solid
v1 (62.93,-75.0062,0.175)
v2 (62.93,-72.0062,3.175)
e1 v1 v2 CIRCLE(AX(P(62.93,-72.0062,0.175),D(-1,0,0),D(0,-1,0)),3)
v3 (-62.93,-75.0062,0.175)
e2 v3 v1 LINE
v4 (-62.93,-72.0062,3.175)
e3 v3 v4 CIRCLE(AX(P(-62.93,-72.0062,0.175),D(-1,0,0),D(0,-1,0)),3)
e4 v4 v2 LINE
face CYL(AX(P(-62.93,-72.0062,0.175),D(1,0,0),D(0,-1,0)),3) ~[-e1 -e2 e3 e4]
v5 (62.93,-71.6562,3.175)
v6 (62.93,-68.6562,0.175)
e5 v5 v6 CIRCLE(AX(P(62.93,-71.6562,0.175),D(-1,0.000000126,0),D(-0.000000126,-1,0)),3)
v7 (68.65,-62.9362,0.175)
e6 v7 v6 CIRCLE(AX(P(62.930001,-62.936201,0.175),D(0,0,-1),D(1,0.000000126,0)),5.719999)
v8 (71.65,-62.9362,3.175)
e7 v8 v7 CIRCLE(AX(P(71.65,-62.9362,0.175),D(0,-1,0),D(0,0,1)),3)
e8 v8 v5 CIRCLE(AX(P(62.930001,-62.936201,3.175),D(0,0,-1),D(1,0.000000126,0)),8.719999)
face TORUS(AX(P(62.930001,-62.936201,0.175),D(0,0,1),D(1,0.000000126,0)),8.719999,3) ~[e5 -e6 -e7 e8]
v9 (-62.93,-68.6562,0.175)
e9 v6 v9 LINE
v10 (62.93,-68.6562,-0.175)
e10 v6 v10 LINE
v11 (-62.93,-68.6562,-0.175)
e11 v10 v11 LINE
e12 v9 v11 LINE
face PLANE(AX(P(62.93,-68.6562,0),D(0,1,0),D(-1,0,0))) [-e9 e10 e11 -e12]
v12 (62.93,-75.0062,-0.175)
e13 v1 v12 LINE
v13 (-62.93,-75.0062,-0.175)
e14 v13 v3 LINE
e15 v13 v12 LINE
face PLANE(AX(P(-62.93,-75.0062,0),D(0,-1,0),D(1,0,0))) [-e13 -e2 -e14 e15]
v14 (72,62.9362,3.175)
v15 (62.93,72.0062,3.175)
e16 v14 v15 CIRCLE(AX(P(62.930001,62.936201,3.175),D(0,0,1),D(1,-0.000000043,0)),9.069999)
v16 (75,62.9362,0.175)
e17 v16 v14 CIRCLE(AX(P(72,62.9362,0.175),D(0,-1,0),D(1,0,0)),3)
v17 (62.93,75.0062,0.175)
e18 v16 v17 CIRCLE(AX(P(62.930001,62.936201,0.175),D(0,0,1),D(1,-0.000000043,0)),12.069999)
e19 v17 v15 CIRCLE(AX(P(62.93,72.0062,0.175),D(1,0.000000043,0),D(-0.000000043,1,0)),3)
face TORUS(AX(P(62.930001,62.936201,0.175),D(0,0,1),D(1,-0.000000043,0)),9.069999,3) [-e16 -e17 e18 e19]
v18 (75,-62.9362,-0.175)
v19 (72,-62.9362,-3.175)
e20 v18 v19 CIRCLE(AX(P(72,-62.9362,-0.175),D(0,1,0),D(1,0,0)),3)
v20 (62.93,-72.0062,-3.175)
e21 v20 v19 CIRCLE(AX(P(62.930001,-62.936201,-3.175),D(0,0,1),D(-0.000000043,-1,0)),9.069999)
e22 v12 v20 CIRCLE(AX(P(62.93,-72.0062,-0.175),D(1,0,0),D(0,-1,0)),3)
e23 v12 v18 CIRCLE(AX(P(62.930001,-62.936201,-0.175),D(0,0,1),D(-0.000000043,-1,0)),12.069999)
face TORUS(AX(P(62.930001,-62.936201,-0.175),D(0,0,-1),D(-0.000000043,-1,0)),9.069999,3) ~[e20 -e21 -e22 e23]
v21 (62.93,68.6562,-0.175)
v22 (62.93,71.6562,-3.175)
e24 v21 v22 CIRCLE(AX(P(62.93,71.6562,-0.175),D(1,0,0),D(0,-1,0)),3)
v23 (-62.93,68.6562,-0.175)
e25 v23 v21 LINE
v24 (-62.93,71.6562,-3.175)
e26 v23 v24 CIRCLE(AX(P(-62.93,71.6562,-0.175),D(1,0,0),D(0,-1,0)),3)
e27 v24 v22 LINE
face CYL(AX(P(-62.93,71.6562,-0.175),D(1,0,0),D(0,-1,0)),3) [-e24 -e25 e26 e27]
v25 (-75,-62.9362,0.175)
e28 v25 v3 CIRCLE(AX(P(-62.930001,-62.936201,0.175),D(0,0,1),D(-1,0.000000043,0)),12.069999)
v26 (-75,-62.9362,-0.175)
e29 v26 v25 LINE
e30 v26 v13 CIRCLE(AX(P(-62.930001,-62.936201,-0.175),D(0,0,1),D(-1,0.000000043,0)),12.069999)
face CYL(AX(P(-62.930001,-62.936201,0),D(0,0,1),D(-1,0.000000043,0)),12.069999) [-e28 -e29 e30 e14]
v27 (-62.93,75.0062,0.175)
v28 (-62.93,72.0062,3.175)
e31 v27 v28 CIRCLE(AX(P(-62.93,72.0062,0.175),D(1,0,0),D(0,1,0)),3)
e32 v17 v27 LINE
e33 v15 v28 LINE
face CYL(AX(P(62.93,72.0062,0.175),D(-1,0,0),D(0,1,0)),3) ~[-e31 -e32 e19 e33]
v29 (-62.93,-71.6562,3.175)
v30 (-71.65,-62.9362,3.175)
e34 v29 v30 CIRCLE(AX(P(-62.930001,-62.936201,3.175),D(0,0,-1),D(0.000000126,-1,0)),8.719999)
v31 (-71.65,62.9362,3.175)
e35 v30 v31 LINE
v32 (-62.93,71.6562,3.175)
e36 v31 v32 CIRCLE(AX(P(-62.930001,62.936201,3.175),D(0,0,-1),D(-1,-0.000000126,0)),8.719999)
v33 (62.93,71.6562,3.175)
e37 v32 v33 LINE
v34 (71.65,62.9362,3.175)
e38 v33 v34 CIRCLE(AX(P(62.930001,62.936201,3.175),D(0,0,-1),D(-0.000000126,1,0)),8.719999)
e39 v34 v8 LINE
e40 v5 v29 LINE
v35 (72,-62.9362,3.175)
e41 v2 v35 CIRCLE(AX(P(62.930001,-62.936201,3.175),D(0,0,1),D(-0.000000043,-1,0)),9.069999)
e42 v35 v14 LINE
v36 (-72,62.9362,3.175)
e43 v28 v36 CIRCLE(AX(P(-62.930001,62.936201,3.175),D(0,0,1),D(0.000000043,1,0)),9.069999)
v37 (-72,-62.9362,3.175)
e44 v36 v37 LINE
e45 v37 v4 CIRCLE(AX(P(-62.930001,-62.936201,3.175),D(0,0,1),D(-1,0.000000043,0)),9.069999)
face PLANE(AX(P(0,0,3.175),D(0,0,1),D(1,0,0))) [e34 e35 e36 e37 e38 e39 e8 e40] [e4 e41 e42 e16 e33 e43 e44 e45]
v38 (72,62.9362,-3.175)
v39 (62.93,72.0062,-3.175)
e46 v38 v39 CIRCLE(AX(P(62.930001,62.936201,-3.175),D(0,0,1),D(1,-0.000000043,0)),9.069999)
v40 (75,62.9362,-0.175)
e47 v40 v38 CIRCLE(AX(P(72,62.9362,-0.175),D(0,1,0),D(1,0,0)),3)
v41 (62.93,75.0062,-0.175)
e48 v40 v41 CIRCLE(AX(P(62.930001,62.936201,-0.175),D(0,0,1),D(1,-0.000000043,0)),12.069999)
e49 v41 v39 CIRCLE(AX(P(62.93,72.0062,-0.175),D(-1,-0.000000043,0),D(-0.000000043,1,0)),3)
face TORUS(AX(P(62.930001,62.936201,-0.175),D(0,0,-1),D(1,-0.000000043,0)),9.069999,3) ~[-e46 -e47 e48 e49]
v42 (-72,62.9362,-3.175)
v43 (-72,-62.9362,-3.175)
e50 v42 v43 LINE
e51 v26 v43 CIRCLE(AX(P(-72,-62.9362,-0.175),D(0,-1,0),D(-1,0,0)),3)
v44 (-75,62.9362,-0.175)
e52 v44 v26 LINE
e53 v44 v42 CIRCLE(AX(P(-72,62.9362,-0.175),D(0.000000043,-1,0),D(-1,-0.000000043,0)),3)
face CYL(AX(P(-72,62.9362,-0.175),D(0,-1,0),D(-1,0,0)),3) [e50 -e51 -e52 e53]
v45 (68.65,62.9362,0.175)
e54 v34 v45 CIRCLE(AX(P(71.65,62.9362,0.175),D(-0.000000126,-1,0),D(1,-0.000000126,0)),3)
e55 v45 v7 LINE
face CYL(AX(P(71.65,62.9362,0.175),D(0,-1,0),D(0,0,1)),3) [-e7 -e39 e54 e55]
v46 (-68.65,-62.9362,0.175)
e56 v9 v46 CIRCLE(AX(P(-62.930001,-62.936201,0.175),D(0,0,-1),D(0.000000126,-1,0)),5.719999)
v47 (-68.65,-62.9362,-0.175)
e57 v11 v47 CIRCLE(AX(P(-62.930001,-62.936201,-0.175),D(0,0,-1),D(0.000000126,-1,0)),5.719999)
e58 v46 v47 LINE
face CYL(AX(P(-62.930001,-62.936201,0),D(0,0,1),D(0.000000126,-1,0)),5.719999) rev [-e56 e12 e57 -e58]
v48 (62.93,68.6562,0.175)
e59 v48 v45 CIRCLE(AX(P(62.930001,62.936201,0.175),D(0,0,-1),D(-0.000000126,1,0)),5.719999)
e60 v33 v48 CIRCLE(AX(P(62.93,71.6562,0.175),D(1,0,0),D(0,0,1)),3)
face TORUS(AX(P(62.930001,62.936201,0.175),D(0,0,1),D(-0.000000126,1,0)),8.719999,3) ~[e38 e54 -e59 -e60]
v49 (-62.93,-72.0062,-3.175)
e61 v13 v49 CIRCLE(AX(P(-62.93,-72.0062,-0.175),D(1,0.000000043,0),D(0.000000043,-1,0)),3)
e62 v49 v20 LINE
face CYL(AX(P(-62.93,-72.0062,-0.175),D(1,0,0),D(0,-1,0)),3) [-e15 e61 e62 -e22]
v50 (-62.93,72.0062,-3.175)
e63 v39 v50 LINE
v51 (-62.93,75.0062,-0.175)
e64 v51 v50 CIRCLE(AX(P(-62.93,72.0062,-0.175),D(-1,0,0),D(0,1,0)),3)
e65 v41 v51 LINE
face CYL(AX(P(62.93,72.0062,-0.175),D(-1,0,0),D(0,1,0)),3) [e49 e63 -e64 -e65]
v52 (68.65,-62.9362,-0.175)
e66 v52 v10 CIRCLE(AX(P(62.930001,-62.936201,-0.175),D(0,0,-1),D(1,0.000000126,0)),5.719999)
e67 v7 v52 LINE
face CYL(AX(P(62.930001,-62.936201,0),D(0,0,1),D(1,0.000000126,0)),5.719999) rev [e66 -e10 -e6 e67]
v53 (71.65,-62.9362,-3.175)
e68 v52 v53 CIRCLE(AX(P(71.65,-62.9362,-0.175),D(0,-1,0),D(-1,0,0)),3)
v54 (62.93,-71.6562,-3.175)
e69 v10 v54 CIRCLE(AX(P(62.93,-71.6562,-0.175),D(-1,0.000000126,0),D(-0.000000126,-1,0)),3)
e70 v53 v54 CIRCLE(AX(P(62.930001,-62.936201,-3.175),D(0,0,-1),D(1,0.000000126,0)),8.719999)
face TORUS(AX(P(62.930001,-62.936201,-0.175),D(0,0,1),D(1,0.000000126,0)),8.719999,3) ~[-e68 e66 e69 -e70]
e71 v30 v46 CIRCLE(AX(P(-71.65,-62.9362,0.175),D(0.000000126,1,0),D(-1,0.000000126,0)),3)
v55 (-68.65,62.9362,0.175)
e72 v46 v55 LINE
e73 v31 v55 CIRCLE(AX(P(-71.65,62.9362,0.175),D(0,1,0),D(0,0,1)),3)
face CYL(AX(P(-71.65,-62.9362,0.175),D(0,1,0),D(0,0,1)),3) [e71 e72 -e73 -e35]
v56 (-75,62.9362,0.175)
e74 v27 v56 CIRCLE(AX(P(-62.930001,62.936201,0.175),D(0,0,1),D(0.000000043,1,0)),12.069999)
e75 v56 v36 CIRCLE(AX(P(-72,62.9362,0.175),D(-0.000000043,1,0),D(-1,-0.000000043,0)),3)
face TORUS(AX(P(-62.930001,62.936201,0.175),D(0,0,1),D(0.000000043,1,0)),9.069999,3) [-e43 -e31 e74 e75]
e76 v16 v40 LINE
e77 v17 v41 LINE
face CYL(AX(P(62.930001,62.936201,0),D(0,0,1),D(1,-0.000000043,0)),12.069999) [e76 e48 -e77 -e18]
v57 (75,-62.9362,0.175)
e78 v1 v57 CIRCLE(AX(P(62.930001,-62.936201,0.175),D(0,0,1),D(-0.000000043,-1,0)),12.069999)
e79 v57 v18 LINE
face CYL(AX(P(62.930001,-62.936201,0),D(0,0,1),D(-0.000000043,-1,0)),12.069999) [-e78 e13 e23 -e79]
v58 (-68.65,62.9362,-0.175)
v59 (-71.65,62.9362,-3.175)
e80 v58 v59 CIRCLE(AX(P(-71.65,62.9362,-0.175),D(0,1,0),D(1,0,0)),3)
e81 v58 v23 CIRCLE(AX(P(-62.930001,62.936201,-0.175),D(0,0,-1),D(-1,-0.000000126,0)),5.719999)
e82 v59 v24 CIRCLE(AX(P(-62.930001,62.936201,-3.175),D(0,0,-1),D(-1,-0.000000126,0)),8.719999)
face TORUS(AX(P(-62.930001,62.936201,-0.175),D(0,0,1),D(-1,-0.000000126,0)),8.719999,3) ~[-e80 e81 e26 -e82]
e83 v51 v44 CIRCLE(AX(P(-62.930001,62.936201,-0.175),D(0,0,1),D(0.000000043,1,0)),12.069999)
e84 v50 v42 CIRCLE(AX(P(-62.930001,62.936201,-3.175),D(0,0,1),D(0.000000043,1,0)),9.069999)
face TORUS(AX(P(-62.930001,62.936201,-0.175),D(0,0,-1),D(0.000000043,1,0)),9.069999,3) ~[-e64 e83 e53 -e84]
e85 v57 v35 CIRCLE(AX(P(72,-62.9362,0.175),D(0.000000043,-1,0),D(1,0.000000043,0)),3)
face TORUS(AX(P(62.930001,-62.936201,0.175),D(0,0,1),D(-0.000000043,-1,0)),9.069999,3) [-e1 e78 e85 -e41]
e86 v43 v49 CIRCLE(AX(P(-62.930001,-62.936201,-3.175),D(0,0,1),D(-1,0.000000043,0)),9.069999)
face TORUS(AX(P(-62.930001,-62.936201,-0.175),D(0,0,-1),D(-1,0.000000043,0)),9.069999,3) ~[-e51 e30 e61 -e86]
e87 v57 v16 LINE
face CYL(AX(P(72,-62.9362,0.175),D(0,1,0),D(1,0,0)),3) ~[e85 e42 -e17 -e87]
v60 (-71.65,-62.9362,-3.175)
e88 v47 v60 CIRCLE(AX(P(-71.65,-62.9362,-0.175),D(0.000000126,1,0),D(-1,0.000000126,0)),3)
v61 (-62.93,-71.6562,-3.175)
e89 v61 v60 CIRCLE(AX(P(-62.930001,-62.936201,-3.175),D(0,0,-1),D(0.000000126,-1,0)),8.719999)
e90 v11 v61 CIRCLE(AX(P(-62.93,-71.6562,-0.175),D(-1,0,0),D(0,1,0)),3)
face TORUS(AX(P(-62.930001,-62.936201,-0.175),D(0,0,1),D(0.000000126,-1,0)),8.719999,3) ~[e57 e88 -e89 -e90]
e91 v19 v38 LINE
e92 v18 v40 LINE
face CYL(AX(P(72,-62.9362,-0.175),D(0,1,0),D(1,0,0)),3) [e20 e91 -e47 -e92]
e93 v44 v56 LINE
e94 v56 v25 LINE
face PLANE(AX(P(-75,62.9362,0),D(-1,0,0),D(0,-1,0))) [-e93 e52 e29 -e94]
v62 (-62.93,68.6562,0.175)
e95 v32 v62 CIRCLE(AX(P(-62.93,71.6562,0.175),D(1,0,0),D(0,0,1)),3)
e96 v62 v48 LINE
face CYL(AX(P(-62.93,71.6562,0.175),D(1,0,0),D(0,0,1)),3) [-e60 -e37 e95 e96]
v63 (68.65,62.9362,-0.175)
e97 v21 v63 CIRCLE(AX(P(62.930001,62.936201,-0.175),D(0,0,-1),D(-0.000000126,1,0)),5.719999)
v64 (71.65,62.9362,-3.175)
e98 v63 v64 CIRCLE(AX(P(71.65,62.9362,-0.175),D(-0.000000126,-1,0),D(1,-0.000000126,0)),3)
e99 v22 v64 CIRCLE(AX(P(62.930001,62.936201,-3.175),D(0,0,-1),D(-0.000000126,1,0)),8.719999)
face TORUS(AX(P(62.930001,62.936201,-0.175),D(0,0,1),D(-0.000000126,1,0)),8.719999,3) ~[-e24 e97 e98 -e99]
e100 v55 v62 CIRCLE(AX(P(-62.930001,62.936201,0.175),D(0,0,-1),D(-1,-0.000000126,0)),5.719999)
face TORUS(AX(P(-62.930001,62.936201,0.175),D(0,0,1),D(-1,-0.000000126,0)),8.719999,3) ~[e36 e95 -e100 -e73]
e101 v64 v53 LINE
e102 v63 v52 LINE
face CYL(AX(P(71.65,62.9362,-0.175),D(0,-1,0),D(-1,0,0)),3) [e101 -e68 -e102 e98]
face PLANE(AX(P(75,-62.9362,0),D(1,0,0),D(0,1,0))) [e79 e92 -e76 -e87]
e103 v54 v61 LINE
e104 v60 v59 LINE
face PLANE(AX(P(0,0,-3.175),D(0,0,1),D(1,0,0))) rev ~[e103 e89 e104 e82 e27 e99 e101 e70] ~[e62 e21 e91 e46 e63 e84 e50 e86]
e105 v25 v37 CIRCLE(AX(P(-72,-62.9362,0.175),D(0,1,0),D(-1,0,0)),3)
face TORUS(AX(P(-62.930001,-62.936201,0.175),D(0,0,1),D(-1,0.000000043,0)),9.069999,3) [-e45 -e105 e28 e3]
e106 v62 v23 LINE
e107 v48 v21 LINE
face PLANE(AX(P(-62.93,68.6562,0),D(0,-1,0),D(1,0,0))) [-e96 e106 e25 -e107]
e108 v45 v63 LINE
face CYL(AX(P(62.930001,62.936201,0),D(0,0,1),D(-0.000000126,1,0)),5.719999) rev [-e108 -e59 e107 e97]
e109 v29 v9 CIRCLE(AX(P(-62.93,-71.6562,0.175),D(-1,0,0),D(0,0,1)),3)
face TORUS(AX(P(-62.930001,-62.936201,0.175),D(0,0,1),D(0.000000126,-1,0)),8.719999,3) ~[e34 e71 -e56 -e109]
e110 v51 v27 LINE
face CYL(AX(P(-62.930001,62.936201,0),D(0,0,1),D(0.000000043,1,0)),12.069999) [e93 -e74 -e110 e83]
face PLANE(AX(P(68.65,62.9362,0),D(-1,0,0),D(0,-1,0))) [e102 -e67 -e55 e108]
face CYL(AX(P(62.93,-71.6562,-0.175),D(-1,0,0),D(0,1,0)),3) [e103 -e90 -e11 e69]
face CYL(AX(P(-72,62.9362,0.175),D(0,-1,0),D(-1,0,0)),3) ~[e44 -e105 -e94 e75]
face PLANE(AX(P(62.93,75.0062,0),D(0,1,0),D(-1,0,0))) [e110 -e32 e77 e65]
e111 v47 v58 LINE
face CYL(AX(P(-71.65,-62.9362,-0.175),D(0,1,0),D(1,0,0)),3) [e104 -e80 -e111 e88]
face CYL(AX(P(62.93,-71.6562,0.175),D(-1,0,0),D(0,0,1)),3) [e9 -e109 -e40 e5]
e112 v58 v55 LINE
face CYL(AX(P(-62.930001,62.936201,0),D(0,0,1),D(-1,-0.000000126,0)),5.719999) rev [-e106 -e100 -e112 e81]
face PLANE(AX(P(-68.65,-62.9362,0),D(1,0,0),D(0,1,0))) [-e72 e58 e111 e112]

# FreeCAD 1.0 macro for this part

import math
import FreeCAD as App
import Part
import Sketcher
from FreeCAD import Vector


def edges_at(feature, points):
    """Names of the edges that pass closest to the given points."""
    edges = feature.Shape.Edges
    near = lambda p: min(range(len(edges)), key=lambda i: edges[i].distToShape(Part.Vertex(*p))[0])
    return sorted({f"Edge{near(p) + 1}" for p in points})

doc = App.newDocument("Part")
body = doc.addObject("PartDesign::Body", "Body")

sketch1 = body.newObject("Sketcher::SketchObject", "Sketch")
sketch1.AttachmentSupport = (doc.getObject("XY_Plane"), [""])
sketch1.MapMode = "FlatFace"
sketch1.addGeometry([
    Part.LineSegment(Vector(62.93, 75.0062, 0), Vector(-62.93, 75.0062, 0)),
    Part.ArcOfCircle(Part.Circle(Vector(-62.930001, 62.936201, 0), Vector(0, 0, 1), 12.069999), math.radians(89.999998), math.radians(180.000002)),
    Part.LineSegment(Vector(-75, 62.9362, 0), Vector(-75, -62.9362, 0)),
    Part.ArcOfCircle(Part.Circle(Vector(-62.930001, -62.936201, 0), Vector(0, 0, 1), 12.069999), math.radians(179.999998), math.radians(270.000002)),
    Part.LineSegment(Vector(-62.93, -75.0062, 0), Vector(62.93, -75.0062, 0)),
    Part.ArcOfCircle(Part.Circle(Vector(62.930001, -62.936201, 0), Vector(0, 0, 1), 12.069999), math.radians(-90.000002), math.radians(0.000002)),
    Part.LineSegment(Vector(75, -62.9362, 0), Vector(75, 62.9362, 0)),
    Part.ArcOfCircle(Part.Circle(Vector(62.930001, 62.936201, 0), Vector(0, 0, 1), 12.069999), math.radians(-0.000002), math.radians(90.000002)),
    Part.LineSegment(Vector(-68.65, -62.9362, 0), Vector(-68.65, 62.9362, 0)),
    Part.ArcOfCircle(Part.Circle(Vector(-62.930001, 62.936201, 0), Vector(0, 0, 1), 5.719999), math.radians(89.999993), math.radians(180.000007)),
    Part.LineSegment(Vector(-62.93, 68.6562, 0), Vector(62.93, 68.6562, 0)),
    Part.ArcOfCircle(Part.Circle(Vector(62.930001, 62.936201, 0), Vector(0, 0, 1), 5.719999), math.radians(-0.000007), math.radians(90.000007)),
    Part.LineSegment(Vector(68.65, 62.9362, 0), Vector(68.65, -62.9362, 0)),
    Part.ArcOfCircle(Part.Circle(Vector(62.930001, -62.936201, 0), Vector(0, 0, 1), 5.719999), math.radians(-90.000007), math.radians(0.000007)),
    Part.LineSegment(Vector(62.93, -68.6562, 0), Vector(-62.93, -68.6562, 0)),
    Part.ArcOfCircle(Part.Circle(Vector(-62.930001, -62.936201, 0), Vector(0, 0, 1), 5.719999), math.radians(179.999993), math.radians(270.000007)),
], False)
sketch1.addConstraint([
    Sketcher.Constraint("Tangent", 0, 2, 1, 1),
    Sketcher.Constraint("Tangent", 1, 2, 2, 1),
    Sketcher.Constraint("Tangent", 2, 2, 3, 1),
    Sketcher.Constraint("Tangent", 3, 2, 4, 1),
    Sketcher.Constraint("Tangent", 4, 2, 5, 1),
    Sketcher.Constraint("Tangent", 5, 2, 6, 1),
    Sketcher.Constraint("Tangent", 6, 2, 7, 1),
    Sketcher.Constraint("Tangent", 7, 2, 0, 1),
    Sketcher.Constraint("Tangent", 8, 2, 9, 2),
    Sketcher.Constraint("Tangent", 9, 1, 10, 1),
    Sketcher.Constraint("Tangent", 10, 2, 11, 2),
    Sketcher.Constraint("Tangent", 11, 1, 12, 1),
    Sketcher.Constraint("Tangent", 12, 2, 13, 2),
    Sketcher.Constraint("Tangent", 13, 1, 14, 1),
    Sketcher.Constraint("Tangent", 14, 2, 15, 2),
    Sketcher.Constraint("Tangent", 15, 1, 8, 1),
    Sketcher.Constraint("Horizontal", 0),
    Sketcher.Constraint("Vertical", 2),
    Sketcher.Constraint("Horizontal", 4),
    Sketcher.Constraint("Vertical", 6),
    Sketcher.Constraint("Vertical", 8),
    Sketcher.Constraint("Horizontal", 10),
    Sketcher.Constraint("Vertical", 12),
    Sketcher.Constraint("Horizontal", 14),
    Sketcher.Constraint("Coincident", 9, 3, 1, 3),
    Sketcher.Constraint("Coincident", 11, 3, 7, 3),
    Sketcher.Constraint("Coincident", 13, 3, 5, 3),
    Sketcher.Constraint("Equal", 1, 3),
    Sketcher.Constraint("Equal", 3, 5),
    Sketcher.Constraint("Equal", 5, 7),
    Sketcher.Constraint("Equal", 13, 15),
    Sketcher.Constraint("Symmetric", 1, 3, 5, 3, -1, 1),
    Sketcher.Constraint("Radius", 1, 12.069999),
    Sketcher.Constraint("Radius", 9, 5.719999),
    Sketcher.Constraint("DistanceX", 1, 2, -1, 1, 75.0),
    Sketcher.Constraint("DistanceY", 2, 2, 2, 1, 125.8724),
])
pad1 = body.newObject("PartDesign::Pad", "Pad")
pad1.Profile = sketch1
pad1.Length = 6.35
pad1.Midplane = True
doc.recompute()

fillet = body.newObject("PartDesign::Fillet", "Fillet")
fillet.Base = (pad1, edges_at(pad1, [
    (0, -75.006, 3.175),
    (-71.465, -71.471, 3.175),
    (-75, 0, 3.175),
    (-71.465, 71.471, 3.175),
    (0, 75.006, 3.175),
    (71.465, 71.471, 3.175),
    (75, 0, 3.175),
    (71.465, -71.471, 3.175),
    (75, 0, -3.175),
    (71.465, -71.471, -3.175),
    (0, 68.656, -3.175),
    (0, 68.656, 3.175),
    (-66.975, 66.981, -3.175),
    (-68.65, 0, -3.175),
    (-66.975, -66.981, -3.175),
    (0, -68.656, -3.175),
    (66.975, -66.981, -3.175),
    (68.65, 0, -3.175),
    (66.975, 66.981, -3.175),
]))
fillet.Radius = 3

doc.recompute()
